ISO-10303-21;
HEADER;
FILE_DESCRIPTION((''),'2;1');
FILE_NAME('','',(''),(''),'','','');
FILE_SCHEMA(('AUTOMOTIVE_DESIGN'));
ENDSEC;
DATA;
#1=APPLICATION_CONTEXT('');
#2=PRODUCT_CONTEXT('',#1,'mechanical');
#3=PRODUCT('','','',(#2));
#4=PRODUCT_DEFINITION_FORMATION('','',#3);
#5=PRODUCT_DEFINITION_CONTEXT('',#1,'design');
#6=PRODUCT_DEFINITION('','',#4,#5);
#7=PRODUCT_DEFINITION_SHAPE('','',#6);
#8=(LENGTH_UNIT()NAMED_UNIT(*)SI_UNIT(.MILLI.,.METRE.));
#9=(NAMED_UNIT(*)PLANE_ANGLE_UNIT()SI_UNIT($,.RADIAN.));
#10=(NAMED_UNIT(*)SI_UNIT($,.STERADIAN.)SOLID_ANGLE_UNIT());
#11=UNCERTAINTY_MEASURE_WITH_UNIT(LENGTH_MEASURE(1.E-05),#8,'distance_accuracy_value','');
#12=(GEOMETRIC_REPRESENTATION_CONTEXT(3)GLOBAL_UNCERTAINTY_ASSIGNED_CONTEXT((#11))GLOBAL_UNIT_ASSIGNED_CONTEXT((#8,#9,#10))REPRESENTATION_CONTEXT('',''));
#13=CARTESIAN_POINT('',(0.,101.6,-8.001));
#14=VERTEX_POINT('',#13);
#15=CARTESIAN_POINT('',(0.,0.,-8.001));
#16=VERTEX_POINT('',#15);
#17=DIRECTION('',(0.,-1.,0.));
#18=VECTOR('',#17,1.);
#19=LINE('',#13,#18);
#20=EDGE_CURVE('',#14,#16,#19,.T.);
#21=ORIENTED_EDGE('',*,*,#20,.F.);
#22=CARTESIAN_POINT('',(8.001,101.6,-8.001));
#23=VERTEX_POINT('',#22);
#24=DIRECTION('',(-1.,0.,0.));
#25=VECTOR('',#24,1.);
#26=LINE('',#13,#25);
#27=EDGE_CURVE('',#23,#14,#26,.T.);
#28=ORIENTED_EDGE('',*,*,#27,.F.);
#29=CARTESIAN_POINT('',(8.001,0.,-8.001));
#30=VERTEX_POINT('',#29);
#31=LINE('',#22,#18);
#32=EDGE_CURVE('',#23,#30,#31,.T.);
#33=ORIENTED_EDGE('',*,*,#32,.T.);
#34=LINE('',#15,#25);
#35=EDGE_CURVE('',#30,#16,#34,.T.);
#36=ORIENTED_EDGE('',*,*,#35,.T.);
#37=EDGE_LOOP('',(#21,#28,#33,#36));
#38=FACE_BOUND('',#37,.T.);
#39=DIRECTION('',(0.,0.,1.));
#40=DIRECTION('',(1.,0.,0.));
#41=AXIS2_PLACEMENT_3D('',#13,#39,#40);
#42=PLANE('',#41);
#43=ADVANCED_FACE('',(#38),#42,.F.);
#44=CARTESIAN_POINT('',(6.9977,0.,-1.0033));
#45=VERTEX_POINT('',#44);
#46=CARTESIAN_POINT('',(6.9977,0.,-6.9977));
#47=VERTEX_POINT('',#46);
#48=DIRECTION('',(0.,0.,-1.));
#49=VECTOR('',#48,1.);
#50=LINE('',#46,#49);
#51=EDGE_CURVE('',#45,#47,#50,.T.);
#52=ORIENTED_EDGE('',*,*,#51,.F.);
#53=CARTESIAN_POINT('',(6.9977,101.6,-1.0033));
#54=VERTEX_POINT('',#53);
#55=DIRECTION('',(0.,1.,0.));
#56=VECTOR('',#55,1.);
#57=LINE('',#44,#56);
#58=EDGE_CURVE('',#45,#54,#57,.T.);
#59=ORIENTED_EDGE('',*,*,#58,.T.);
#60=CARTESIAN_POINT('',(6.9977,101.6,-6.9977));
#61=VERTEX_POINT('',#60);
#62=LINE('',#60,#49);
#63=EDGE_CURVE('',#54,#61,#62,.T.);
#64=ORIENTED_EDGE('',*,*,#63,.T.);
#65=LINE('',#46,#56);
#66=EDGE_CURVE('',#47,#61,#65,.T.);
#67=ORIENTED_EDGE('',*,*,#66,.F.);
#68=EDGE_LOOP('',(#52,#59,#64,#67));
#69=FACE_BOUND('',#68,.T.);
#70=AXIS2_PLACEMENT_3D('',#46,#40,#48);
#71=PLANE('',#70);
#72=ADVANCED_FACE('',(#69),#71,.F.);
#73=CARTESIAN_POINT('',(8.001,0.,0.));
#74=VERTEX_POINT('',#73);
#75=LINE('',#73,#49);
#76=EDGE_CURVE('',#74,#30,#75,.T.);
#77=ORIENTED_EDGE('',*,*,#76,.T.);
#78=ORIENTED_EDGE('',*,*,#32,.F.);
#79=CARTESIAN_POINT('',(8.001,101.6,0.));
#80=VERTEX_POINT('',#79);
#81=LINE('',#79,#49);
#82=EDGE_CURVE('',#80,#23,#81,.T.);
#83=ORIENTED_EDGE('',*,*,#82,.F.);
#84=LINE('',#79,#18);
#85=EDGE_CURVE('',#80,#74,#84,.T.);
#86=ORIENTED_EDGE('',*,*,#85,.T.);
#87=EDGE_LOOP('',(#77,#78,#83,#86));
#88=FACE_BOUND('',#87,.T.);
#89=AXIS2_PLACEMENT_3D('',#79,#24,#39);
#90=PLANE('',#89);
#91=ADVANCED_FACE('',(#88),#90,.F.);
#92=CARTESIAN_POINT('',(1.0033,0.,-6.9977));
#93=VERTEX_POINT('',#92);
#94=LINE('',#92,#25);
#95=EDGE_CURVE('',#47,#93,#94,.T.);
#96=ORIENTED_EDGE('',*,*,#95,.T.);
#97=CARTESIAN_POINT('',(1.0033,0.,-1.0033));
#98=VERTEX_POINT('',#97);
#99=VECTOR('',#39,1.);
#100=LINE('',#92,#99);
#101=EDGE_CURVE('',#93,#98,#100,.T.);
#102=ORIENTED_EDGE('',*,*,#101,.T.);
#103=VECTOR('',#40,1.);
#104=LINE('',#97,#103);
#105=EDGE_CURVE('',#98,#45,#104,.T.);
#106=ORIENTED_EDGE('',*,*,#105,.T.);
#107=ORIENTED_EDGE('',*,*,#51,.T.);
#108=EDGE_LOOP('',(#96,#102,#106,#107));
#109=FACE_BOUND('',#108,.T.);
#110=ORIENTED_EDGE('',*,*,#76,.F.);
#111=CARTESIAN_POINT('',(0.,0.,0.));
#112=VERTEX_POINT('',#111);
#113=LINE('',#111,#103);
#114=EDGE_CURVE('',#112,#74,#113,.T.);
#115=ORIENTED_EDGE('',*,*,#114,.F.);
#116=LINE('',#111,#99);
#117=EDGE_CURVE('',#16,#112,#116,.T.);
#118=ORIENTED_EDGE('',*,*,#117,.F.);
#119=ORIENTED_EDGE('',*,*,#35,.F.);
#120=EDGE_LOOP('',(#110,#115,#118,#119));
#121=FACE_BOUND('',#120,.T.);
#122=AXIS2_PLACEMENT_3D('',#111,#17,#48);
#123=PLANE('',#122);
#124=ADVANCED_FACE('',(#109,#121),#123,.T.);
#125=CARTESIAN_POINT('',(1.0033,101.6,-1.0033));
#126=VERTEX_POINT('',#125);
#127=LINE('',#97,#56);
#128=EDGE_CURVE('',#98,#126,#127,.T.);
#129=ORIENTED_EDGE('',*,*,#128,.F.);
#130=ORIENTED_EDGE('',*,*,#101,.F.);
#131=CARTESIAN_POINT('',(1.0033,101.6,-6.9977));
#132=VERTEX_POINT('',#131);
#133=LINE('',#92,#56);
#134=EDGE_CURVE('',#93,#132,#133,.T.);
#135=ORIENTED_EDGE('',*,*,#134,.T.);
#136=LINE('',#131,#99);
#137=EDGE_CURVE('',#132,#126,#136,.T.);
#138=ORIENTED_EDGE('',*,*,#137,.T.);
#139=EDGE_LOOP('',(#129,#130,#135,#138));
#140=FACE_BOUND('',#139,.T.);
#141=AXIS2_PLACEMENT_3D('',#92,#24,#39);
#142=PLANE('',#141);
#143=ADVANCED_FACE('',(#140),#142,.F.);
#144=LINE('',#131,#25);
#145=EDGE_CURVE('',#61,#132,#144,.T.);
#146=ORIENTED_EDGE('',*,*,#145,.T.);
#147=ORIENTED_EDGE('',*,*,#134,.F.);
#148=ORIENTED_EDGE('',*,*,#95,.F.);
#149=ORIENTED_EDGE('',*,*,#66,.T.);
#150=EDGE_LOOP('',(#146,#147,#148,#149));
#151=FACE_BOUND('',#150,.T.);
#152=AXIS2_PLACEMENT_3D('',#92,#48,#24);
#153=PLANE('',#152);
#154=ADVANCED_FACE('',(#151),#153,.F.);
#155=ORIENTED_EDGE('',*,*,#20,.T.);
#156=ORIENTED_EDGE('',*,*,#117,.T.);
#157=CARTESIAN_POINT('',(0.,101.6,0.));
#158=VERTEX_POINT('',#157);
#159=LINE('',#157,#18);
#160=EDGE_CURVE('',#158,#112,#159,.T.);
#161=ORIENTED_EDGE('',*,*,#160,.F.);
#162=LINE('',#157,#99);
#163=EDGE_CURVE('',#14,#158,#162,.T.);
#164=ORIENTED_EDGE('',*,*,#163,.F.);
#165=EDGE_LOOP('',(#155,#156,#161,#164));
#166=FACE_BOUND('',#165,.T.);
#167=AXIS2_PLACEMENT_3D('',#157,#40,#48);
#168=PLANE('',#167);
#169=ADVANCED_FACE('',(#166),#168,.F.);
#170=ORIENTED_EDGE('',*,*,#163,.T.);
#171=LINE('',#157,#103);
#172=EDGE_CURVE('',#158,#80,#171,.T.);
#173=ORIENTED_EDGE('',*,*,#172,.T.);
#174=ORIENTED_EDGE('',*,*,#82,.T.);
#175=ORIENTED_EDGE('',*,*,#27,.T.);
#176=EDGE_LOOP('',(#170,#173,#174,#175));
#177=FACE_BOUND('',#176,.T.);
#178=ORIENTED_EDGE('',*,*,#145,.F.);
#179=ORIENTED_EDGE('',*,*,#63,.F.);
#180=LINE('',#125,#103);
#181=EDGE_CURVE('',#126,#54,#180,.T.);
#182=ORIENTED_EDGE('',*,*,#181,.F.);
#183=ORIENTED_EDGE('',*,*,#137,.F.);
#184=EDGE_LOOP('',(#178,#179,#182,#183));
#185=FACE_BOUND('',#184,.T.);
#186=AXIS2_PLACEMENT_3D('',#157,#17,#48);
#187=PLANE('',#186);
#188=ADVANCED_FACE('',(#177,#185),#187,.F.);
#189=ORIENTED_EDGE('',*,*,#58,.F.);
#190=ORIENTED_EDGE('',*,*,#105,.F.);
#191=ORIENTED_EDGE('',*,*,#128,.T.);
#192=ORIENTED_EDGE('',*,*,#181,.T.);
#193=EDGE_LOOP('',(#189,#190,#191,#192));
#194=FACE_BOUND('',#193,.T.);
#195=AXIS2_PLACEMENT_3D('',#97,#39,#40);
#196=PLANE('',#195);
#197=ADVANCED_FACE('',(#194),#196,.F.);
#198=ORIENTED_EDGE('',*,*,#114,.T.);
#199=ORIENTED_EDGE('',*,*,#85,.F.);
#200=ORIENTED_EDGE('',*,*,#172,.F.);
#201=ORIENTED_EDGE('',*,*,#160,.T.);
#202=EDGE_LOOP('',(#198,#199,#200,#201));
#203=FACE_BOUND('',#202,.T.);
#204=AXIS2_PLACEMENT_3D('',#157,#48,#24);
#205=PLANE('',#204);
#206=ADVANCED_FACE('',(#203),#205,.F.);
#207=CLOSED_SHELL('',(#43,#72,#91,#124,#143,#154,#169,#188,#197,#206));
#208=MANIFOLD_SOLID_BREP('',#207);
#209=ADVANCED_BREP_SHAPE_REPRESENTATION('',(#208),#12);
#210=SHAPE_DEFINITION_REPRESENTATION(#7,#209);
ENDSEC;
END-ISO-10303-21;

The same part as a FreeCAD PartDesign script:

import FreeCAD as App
import Part
import Sketcher
from FreeCAD import Vector
Q = App.Units.Quantity

doc = App.newDocument("Part")
body = doc.addObject("PartDesign::Body", "Body")

# Sketch on XZ plane
sketch1 = body.newObject("Sketcher::SketchObject", "Sketch")
sketch1.AttachmentSupport = (doc.getObject("XZ_Plane"), [""])
sketch1.MapMode = "FlatFace"
sketch1.addGeometry([
    Part.LineSegment(Vector(0, -8, 0), Vector(0, 0, 0)),
    Part.LineSegment(Vector(0, 0, 0), Vector(8, 0, 0)),
    Part.LineSegment(Vector(8, 0, 0), Vector(8, -8, 0)),
    Part.LineSegment(Vector(8, -8, 0), Vector(0, -8, 0)),
], False)
sketch1.addConstraint([
    Sketcher.Constraint("Coincident", 0, 2, 1, 1),
    Sketcher.Constraint("Coincident", 1, 2, 2, 1),
    Sketcher.Constraint("Coincident", 2, 2, 3, 1),
    Sketcher.Constraint("Coincident", 3, 2, 0, 1),
    Sketcher.Constraint("Vertical", 0),
    Sketcher.Constraint("Horizontal", 1),
    Sketcher.Constraint("Vertical", 2),
    Sketcher.Constraint("Horizontal", 3),
    Sketcher.Constraint("Coincident", 0, 2, -1, 1),
    Sketcher.Constraint("Equal", 3, 0),
    Sketcher.Constraint("DistanceX", 1, 1, 1, 2, Q("0.315 in")),
])
pad1 = body.newObject("PartDesign::Pad", "Pad")
pad1.Profile = sketch1
pad1.Length = Q("4 in")
pad1.Reversed = True

# Sketch on XZ plane
sketch2 = body.newObject("Sketcher::SketchObject", "Sketch001")
sketch2.AttachmentSupport = (doc.getObject("XZ_Plane"), [""])
sketch2.MapMode = "FlatFace"
sketch2.AttachmentOffset = App.Placement(Vector(0, 0, -4 * 25.4), App.Rotation())
sketch2.addGeometry([
    Part.LineSegment(Vector(1, -7, 0), Vector(1, -1, 0)),
    Part.LineSegment(Vector(1, -1, 0), Vector(7, -1, 0)),
    Part.LineSegment(Vector(7, -1, 0), Vector(7, -7, 0)),
    Part.LineSegment(Vector(7, -7, 0), Vector(1, -7, 0)),
], False)
sketch2.addConstraint([
    Sketcher.Constraint("Coincident", 0, 2, 1, 1),
    Sketcher.Constraint("Coincident", 1, 2, 2, 1),
    Sketcher.Constraint("Coincident", 2, 2, 3, 1),
    Sketcher.Constraint("Coincident", 3, 2, 0, 1),
    Sketcher.Constraint("Vertical", 0),
    Sketcher.Constraint("Horizontal", 1),
    Sketcher.Constraint("Vertical", 2),
    Sketcher.Constraint("Horizontal", 3),
    Sketcher.Constraint("Equal", 3, 0),
    Sketcher.Constraint("DistanceX", 1, 1, 1, 2, Q("0.236 in")),
    Sketcher.Constraint("DistanceX", -1, 1, 0, 2, Q("0.0395 in")),
    Sketcher.Constraint("DistanceY", 0, 2, -1, 1, Q("0.0395 in")),
])
pocket1 = body.newObject("PartDesign::Pocket", "Pocket")
pocket1.Profile = sketch2
pocket1.Type = "ThroughAll"
pocket1.Reversed = True

doc.recompute()
